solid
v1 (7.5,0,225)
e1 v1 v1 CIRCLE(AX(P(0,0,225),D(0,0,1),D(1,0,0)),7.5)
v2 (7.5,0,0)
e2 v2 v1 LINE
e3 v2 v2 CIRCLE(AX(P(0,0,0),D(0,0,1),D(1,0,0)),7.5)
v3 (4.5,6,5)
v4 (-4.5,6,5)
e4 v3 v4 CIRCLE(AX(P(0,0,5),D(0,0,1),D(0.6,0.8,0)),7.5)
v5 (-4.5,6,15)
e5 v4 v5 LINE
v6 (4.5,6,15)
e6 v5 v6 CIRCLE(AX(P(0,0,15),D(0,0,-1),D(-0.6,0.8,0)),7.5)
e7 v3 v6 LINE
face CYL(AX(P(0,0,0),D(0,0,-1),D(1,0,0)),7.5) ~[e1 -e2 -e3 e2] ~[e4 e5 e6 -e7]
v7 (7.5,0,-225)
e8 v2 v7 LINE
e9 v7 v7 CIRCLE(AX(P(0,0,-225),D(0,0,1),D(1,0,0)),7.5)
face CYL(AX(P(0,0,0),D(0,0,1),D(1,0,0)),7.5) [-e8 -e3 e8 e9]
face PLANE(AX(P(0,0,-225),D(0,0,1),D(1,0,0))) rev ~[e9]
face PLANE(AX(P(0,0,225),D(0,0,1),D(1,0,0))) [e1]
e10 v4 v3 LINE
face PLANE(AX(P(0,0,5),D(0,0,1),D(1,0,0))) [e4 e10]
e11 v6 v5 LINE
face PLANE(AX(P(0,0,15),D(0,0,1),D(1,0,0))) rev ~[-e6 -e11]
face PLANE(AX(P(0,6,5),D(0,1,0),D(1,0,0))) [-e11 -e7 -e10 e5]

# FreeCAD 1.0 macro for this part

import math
import FreeCAD as App
import Part
import Sketcher

V = App.Vector
Q = App.Units.Quantity

doc = App.newDocument("Part")
body = doc.addObject("PartDesign::Body", "Body")

# Sketch on XY plane
sketch1 = body.newObject("Sketcher::SketchObject", "Sketch")
sketch1.AttachmentSupport = (doc.getObject("XY_Plane"), [""])
sketch1.MapMode = "FlatFace"
sketch1.addGeometry(Part.Circle(V(0, 0, 0), V(0, 0, 1), 8), False)
sketch1.addConstraint(Sketcher.Constraint("Coincident", 0, 3, -1, 1))
sketch1.addConstraint(Sketcher.Constraint("Diameter", 0, Q("15 mm")))
pad1 = body.newObject("PartDesign::Pad", "Pad")
pad1.Profile = sketch1
pad1.Length = 450
pad1.Midplane = True

# Sketch on XY plane
sketch2 = body.newObject("Sketcher::SketchObject", "Sketch001")
sketch2.AttachmentSupport = (doc.getObject("XY_Plane"), [""])
sketch2.MapMode = "FlatFace"
sketch2.AttachmentOffset = App.Placement(V(0, 0, 5), App.Rotation())
sketch2.addGeometry(Part.ArcOfCircle(Part.Circle(V(0, 0, 0), V(0, 0, 1), 8), math.radians(53), math.radians(127)), False)
sketch2.addGeometry(Part.LineSegment(V(-4, 6, 0), V(4, 6, 0)), False)
sketch2.addConstraint(Sketcher.Constraint("Coincident", 0, 1, 1, 2))
sketch2.addConstraint(Sketcher.Constraint("Coincident", 1, 1, 0, 2))
sketch2.addConstraint(Sketcher.Constraint("Horizontal", 1))
sketch2.addConstraint(Sketcher.Constraint("Coincident", 0, 3, -1, 1))
sketch2.addConstraint(Sketcher.Constraint("Radius", 0, Q("7.5 mm")))
sketch2.addConstraint(Sketcher.Constraint("DistanceX", 1, 1, 1, 2, Q("9 mm")))
pocket1 = body.newObject("PartDesign::Pocket", "Pocket")
pocket1.Profile = sketch2
pocket1.Length = 10
pocket1.Reversed = True

doc.recompute()
